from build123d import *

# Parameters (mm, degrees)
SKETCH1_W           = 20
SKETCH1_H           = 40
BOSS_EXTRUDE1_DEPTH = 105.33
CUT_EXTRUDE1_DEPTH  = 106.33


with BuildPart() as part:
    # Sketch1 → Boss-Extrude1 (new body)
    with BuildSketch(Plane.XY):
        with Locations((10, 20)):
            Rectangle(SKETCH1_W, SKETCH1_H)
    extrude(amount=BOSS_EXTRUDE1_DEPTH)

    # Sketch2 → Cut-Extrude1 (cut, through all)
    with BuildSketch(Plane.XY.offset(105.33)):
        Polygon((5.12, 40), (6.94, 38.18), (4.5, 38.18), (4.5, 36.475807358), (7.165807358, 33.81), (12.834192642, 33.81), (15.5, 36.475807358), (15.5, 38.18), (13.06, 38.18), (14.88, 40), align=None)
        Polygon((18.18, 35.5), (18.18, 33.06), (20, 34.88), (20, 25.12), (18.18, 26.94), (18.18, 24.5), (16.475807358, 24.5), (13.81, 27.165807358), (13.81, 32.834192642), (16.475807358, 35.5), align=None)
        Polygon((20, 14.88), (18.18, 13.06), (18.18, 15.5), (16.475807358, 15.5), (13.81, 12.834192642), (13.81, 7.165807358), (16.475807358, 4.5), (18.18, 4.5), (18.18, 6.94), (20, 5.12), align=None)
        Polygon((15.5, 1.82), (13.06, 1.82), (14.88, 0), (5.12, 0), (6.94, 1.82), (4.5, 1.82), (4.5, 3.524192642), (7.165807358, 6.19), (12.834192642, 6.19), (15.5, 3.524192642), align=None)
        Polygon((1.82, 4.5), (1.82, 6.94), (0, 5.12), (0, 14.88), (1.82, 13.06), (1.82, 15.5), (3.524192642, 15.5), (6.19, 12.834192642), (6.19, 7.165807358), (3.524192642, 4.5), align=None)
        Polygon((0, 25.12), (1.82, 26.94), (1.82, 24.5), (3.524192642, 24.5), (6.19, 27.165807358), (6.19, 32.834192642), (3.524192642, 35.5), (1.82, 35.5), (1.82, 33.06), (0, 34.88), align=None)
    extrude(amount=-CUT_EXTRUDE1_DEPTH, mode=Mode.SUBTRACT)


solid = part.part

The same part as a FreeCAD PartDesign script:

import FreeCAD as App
import Part
import Sketcher
Q = App.Units.Quantity


def add_polygon(sketch, points):
    """Adds a closed chain of lines whose ends are joined by coincident constraints."""
    first, n = sketch.GeometryCount, len(points)
    for a, b in zip(points, points[1:] + points[:1]):
        sketch.addGeometry(Part.LineSegment(App.Vector(*a, 0), App.Vector(*b, 0)), False)
    for i in range(n):
        sketch.addConstraint(Sketcher.Constraint("Coincident", first + i, 2, first + (i + 1) % n, 1))

doc = App.newDocument("Part")
params = doc.addObject("Spreadsheet::Sheet", "Params")
for row, (alias, value) in enumerate([
    ("sketch1_width", "20 mm"),
    ("sketch1_height", "40 mm"),
    ("pad1_length", "105.33 mm"),
    ("sketch2_width", "2.44 mm"),
    ("sketch2_width2", "9.76 mm"),
], start=1):
    params.set(f"A{row}", alias)
    params.set(f"B{row}", "=" + value)
    params.setAlias(f"B{row}", alias)

body = doc.addObject("PartDesign::Body", "Body")

sketch1 = body.newObject("Sketcher::SketchObject", "Sketch")
sketch1.AttachmentSupport = (doc.getObject("XY_Plane"), [""])
sketch1.MapMode = "FlatFace"
add_polygon(sketch1, [(0, 40), (0, 0), (20, 0), (20, 40)])
sketch1.addConstraint(Sketcher.Constraint("Vertical", 0))
sketch1.addConstraint(Sketcher.Constraint("Horizontal", 1))
sketch1.addConstraint(Sketcher.Constraint("Vertical", 2))
sketch1.addConstraint(Sketcher.Constraint("Horizontal", 3))
sketch1.addConstraint(Sketcher.Constraint("Coincident", 0, 2, -1, 1))
sketch1.addConstraint(Sketcher.Constraint("DistanceX", 1, 1, 1, 2, Q("20 mm")))
sketch1.addConstraint(Sketcher.Constraint("DistanceY", 0, 2, 0, 1, Q("40 mm")))
sketch1.setExpression("Constraints[9]", "Params.sketch1_width")
sketch1.setExpression("Constraints[10]", "Params.sketch1_height")
pad1 = body.newObject("PartDesign::Pad", "Pad")
pad1.Profile = sketch1
pad1.setExpression("Length", "Params.pad1_length")

sketch2 = body.newObject("Sketcher::SketchObject", "Sketch001")
sketch2.AttachmentSupport = (doc.getObject("XY_Plane"), [""])
sketch2.MapMode = "FlatFace"
sketch2.AttachmentOffset = App.Placement(App.Vector(0, 0, 105.33), App.Rotation())
add_polygon(sketch2, [(5.12, 40), (6.94, 38.18), (4.5, 38.18), (4.5, 36.475807), (7.165807, 33.81), (12.834193, 33.81), (15.5, 36.475807), (15.5, 38.18), (13.06, 38.18), (14.88, 40)])
add_polygon(sketch2, [(18.18, 33.06), (18.18, 35.5), (16.475807, 35.5), (13.81, 32.834193), (13.81, 27.165807), (16.475807, 24.5), (18.18, 24.5), (18.18, 26.94), (20, 25.12), (20, 34.88)])
add_polygon(sketch2, [(20, 14.88), (18.18, 13.06), (18.18, 15.5), (16.475807, 15.5), (13.81, 12.834193), (13.81, 7.165807), (16.475807, 4.5), (18.18, 4.5), (18.18, 6.94), (20, 5.12)])
add_polygon(sketch2, [(13.06, 1.82), (15.5, 1.82), (15.5, 3.524193), (12.834193, 6.19), (7.165807, 6.19), (4.5, 3.524193), (4.5, 1.82), (6.94, 1.82), (5.12, 0), (14.88, 0)])
add_polygon(sketch2, [(1.82, 6.94), (1.82, 4.5), (3.524193, 4.5), (6.19, 7.165807), (6.19, 12.834193), (3.524193, 15.5), (1.82, 15.5), (1.82, 13.06), (0, 14.88), (0, 5.12)])
add_polygon(sketch2, [(0, 25.12), (1.82, 26.94), (1.82, 24.5), (3.524193, 24.5), (6.19, 27.165807), (6.19, 32.834193), (3.524193, 35.5), (1.82, 35.5), (1.82, 33.06), (0, 34.88)])
sketch2.addConstraint(Sketcher.Constraint("Horizontal", 1))
sketch2.addConstraint(Sketcher.Constraint("Vertical", 2))
sketch2.addConstraint(Sketcher.Constraint("Horizontal", 4))
sketch2.addConstraint(Sketcher.Constraint("Vertical", 6))
sketch2.addConstraint(Sketcher.Constraint("Horizontal", 7))
sketch2.addConstraint(Sketcher.Constraint("Horizontal", 9))
sketch2.addConstraint(Sketcher.Constraint("Vertical", 10))
sketch2.addConstraint(Sketcher.Constraint("Horizontal", 11))
sketch2.addConstraint(Sketcher.Constraint("Vertical", 13))
sketch2.addConstraint(Sketcher.Constraint("Horizontal", 15))
sketch2.addConstraint(Sketcher.Constraint("Vertical", 16))
sketch2.addConstraint(Sketcher.Constraint("Vertical", 18))
sketch2.addConstraint(Sketcher.Constraint("Vertical", 21))
sketch2.addConstraint(Sketcher.Constraint("Horizontal", 22))
sketch2.addConstraint(Sketcher.Constraint("Vertical", 24))
sketch2.addConstraint(Sketcher.Constraint("Horizontal", 26))
sketch2.addConstraint(Sketcher.Constraint("Vertical", 27))
sketch2.addConstraint(Sketcher.Constraint("Vertical", 29))
sketch2.addConstraint(Sketcher.Constraint("Horizontal", 30))
sketch2.addConstraint(Sketcher.Constraint("Vertical", 31))
sketch2.addConstraint(Sketcher.Constraint("Horizontal", 33))
sketch2.addConstraint(Sketcher.Constraint("Vertical", 35))
sketch2.addConstraint(Sketcher.Constraint("Horizontal", 36))
sketch2.addConstraint(Sketcher.Constraint("Horizontal", 38))
sketch2.addConstraint(Sketcher.Constraint("Vertical", 40))
sketch2.addConstraint(Sketcher.Constraint("Horizontal", 41))
sketch2.addConstraint(Sketcher.Constraint("Vertical", 43))
sketch2.addConstraint(Sketcher.Constraint("Horizontal", 45))
sketch2.addConstraint(Sketcher.Constraint("Vertical", 46))
sketch2.addConstraint(Sketcher.Constraint("Vertical", 48))
sketch2.addConstraint(Sketcher.Constraint("Vertical", 51))
sketch2.addConstraint(Sketcher.Constraint("Horizontal", 52))
sketch2.addConstraint(Sketcher.Constraint("Vertical", 54))
sketch2.addConstraint(Sketcher.Constraint("Horizontal", 56))
sketch2.addConstraint(Sketcher.Constraint("Vertical", 57))
sketch2.addConstraint(Sketcher.Constraint("Vertical", 59))
sketch2.addConstraint(Sketcher.Constraint("PointOnObject", 37, 2, -1))
sketch2.addConstraint(Sketcher.Constraint("PointOnObject", 47, 2, -2))
sketch2.addConstraint(Sketcher.Constraint("PointOnObject", 58, 2, -2))
sketch2.addConstraint(Sketcher.Constraint("Parallel", 0, 3))
sketch2.addConstraint(Sketcher.Constraint("Perpendicular", 3, 5))
sketch2.addConstraint(Sketcher.Constraint("Parallel", 5, 8))
sketch2.addConstraint(Sketcher.Constraint("Parallel", 8, 12))
sketch2.addConstraint(Sketcher.Constraint("Perpendicular", 12, 14))
sketch2.addConstraint(Sketcher.Constraint("Parallel", 14, 17))
sketch2.addConstraint(Sketcher.Constraint("Perpendicular", 17, 19))
sketch2.addConstraint(Sketcher.Constraint("Parallel", 19, 20))
sketch2.addConstraint(Sketcher.Constraint("Parallel", 20, 23))
sketch2.addConstraint(Sketcher.Constraint("Perpendicular", 23, 25))
sketch2.addConstraint(Sketcher.Constraint("Parallel", 25, 28))
sketch2.addConstraint(Sketcher.Constraint("Parallel", 28, 32))
sketch2.addConstraint(Sketcher.Constraint("Perpendicular", 32, 34))
sketch2.addConstraint(Sketcher.Constraint("Parallel", 34, 37))
sketch2.addConstraint(Sketcher.Constraint("Perpendicular", 37, 39))
sketch2.addConstraint(Sketcher.Constraint("Perpendicular", 39, 42))
sketch2.addConstraint(Sketcher.Constraint("Perpendicular", 42, 44))
sketch2.addConstraint(Sketcher.Constraint("Parallel", 44, 47))
sketch2.addConstraint(Sketcher.Constraint("Perpendicular", 47, 49))
sketch2.addConstraint(Sketcher.Constraint("Parallel", 49, 50))
sketch2.addConstraint(Sketcher.Constraint("Parallel", 50, 53))
sketch2.addConstraint(Sketcher.Constraint("Perpendicular", 53, 55))
sketch2.addConstraint(Sketcher.Constraint("Parallel", 55, 58))
sketch2.addConstraint(Sketcher.Constraint("Horizontal", 2, 2, 5, 2))
sketch2.addConstraint(Sketcher.Constraint("Horizontal", 1, 2, 6, 2))
sketch2.addConstraint(Sketcher.Constraint("Horizontal", 31, 2, 34, 2))
sketch2.addConstraint(Sketcher.Constraint("Horizontal", 30, 2, 35, 2))
sketch2.addConstraint(Sketcher.Constraint("Horizontal", 26, 2, 40, 2))
sketch2.addConstraint(Sketcher.Constraint("Horizontal", 24, 2, 42, 2))
sketch2.addConstraint(Sketcher.Constraint("Horizontal", 23, 2, 43, 2))
sketch2.addConstraint(Sketcher.Constraint("Horizontal", 22, 2, 44, 2))
sketch2.addConstraint(Sketcher.Constraint("Horizontal", 20, 2, 46, 2))
sketch2.addConstraint(Sketcher.Constraint("Horizontal", 29, 2, 47, 2))
sketch2.addConstraint(Sketcher.Constraint("Horizontal", 28, 2, 48, 2))
sketch2.addConstraint(Sketcher.Constraint("Horizontal", 27, 2, 49, 2))
sketch2.addConstraint(Sketcher.Constraint("Horizontal", 16, 2, 50, 2))
sketch2.addConstraint(Sketcher.Constraint("Horizontal", 15, 2, 51, 2))
sketch2.addConstraint(Sketcher.Constraint("Horizontal", 13, 2, 53, 2))
sketch2.addConstraint(Sketcher.Constraint("Horizontal", 12, 2, 54, 2))
sketch2.addConstraint(Sketcher.Constraint("Horizontal", 11, 2, 55, 2))
sketch2.addConstraint(Sketcher.Constraint("Horizontal", 19, 2, 57, 2))
sketch2.addConstraint(Sketcher.Constraint("Horizontal", 18, 2, 58, 2))
sketch2.addConstraint(Sketcher.Constraint("Horizontal", 17, 2, 59, 2))
sketch2.addConstraint(Sketcher.Constraint("Vertical", 11, 2, 14, 2))
sketch2.addConstraint(Sketcher.Constraint("Vertical", 10, 2, 15, 2))
sketch2.addConstraint(Sketcher.Constraint("Vertical", 19, 2, 20, 2))
sketch2.addConstraint(Sketcher.Constraint("Vertical", 14, 2, 22, 2))
sketch2.addConstraint(Sketcher.Constraint("Vertical", 13, 2, 23, 2))
sketch2.addConstraint(Sketcher.Constraint("Vertical", 22, 2, 25, 2))
sketch2.addConstraint(Sketcher.Constraint("Vertical", 21, 2, 26, 2))
sketch2.addConstraint(Sketcher.Constraint("Vertical", 18, 2, 28, 2))
sketch2.addConstraint(Sketcher.Constraint("Vertical", 6, 2, 30, 2))
sketch2.addConstraint(Sketcher.Constraint("Vertical", 4, 2, 32, 2))
sketch2.addConstraint(Sketcher.Constraint("Vertical", 3, 2, 33, 2))
sketch2.addConstraint(Sketcher.Constraint("Vertical", 2, 2, 34, 2))
sketch2.addConstraint(Sketcher.Constraint("Vertical", 0, 2, 36, 2))
sketch2.addConstraint(Sketcher.Constraint("Vertical", 9, 2, 37, 2))
sketch2.addConstraint(Sketcher.Constraint("Vertical", 8, 2, 38, 2))
sketch2.addConstraint(Sketcher.Constraint("Vertical", 44, 2, 52, 2))
sketch2.addConstraint(Sketcher.Constraint("Equal", 1, 7))
sketch2.addConstraint(Sketcher.Constraint("Equal", 26, 41))
sketch2.addConstraint(Sketcher.Constraint("Equal", 56, 2))
sketch2.addConstraint(Sketcher.Constraint("Equal", 36, 10))
sketch2.addConstraint(Sketcher.Constraint("Equal", 33, 13))
sketch2.addConstraint(Sketcher.Constraint("Equal", 10, 16))
sketch2.addConstraint(Sketcher.Constraint("Equal", 38, 18))
sketch2.addConstraint(Sketcher.Constraint("Equal", 16, 21))
sketch2.addConstraint(Sketcher.Constraint("Equal", 13, 24))
sketch2.addConstraint(Sketcher.Constraint("Equal", 21, 27))
sketch2.addConstraint(Sketcher.Constraint("Equal", 6, 31))
sketch2.addConstraint(Sketcher.Constraint("Equal", 5, 12))
sketch2.addConstraint(Sketcher.Constraint("DistanceY", -1, 1, 8, 2, Q("40 mm")))
sketch2.addConstraint(Sketcher.Constraint("DistanceX", -1, 1, 17, 2, Q("20 mm")))
sketch2.addConstraint(Sketcher.Constraint("DistanceX", 2, 2, 5, 2, Q("11 mm")))
sketch2.addConstraint(Sketcher.Constraint("DistanceY", 21, 2, 15, 2, Q("9 mm")))
sketch2.addConstraint(Sketcher.Constraint("DistanceX", 1, 2, 1, 1, Q("2.44 mm")))
sketch2.addConstraint(Sketcher.Constraint("DistanceX", 9, 2, 9, 1, Q("9.76 mm")))
sketch2.addConstraint(Sketcher.Constraint("DistanceX", -1, 1, 1, 2, Q("4.5 mm")))
sketch2.addConstraint(Sketcher.Constraint("DistanceY", -1, 1, 10, 2, Q("35.5 mm")))
sketch2.addConstraint(Sketcher.Constraint("DistanceY", -1, 1, 3, 2, Q("33.81 mm")))
sketch2.addConstraint(Sketcher.Constraint("Distance", 3, Q("3.770021 mm")))
sketch2.setExpression("Constraints[174]", "Params.sketch2_width")
sketch2.setExpression("Constraints[175]", "Params.sketch2_width2")
pocket1 = body.newObject("PartDesign::Pocket", "Pocket")
pocket1.Profile = sketch2
pocket1.Type = "ThroughAll"

doc.recompute()
